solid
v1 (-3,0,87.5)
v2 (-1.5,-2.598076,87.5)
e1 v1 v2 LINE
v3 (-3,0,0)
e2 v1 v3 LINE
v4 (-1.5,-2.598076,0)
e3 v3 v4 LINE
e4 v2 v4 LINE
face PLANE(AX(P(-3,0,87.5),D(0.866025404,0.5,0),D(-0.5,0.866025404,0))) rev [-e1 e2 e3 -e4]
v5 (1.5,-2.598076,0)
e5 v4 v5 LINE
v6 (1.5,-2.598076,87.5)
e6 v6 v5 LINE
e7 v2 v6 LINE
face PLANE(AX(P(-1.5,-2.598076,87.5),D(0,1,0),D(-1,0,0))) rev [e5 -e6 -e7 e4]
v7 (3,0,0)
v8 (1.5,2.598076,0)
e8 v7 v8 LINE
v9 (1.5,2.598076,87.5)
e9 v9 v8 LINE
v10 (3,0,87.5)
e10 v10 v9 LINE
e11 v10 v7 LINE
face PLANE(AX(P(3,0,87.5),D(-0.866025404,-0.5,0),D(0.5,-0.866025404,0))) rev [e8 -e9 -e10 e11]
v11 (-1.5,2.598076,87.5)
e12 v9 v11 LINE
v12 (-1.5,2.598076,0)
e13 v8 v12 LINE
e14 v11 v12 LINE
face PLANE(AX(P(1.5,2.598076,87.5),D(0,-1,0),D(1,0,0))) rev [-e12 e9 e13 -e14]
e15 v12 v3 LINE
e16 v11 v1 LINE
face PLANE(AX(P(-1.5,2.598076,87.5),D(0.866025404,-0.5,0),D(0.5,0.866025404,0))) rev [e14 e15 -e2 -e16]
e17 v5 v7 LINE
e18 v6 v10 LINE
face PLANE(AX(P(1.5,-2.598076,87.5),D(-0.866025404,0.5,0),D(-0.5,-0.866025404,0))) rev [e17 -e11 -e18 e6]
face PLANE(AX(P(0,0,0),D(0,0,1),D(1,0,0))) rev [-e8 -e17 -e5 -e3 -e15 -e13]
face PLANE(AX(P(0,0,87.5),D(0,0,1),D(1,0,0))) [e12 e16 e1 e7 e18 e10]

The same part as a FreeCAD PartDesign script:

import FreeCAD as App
import Part
import Sketcher
Q = App.Units.Quantity

doc = App.newDocument("Part")
body = doc.addObject("PartDesign::Body", "Body")

# Sketch on XY plane
sketch1 = body.newObject("Sketcher::SketchObject", "Sketch")
sketch1.AttachmentSupport = (doc.getObject("XY_Plane"), [""])
sketch1.MapMode = "FlatFace"
sketch1.addGeometry(Part.LineSegment(App.Vector(3, 0, 0), App.Vector(1.5, 2.598076, 0)), False)
sketch1.addGeometry(Part.LineSegment(App.Vector(1.5, 2.598076, 0), App.Vector(-1.5, 2.598076, 0)), False)
sketch1.addGeometry(Part.LineSegment(App.Vector(-1.5, 2.598076, 0), App.Vector(-3, 0, 0)), False)
sketch1.addGeometry(Part.LineSegment(App.Vector(-3, 0, 0), App.Vector(-1.5, -2.598076, 0)), False)
sketch1.addGeometry(Part.LineSegment(App.Vector(-1.5, -2.598076, 0), App.Vector(1.5, -2.598076, 0)), False)
sketch1.addGeometry(Part.LineSegment(App.Vector(1.5, -2.598076, 0), App.Vector(3, 0, 0)), False)
sketch1.addConstraint(Sketcher.Constraint("Coincident", 0, 2, 1, 1))
sketch1.addConstraint(Sketcher.Constraint("Coincident", 1, 2, 2, 1))
sketch1.addConstraint(Sketcher.Constraint("Coincident", 2, 2, 3, 1))
sketch1.addConstraint(Sketcher.Constraint("Coincident", 3, 2, 4, 1))
sketch1.addConstraint(Sketcher.Constraint("Coincident", 4, 2, 5, 1))
sketch1.addConstraint(Sketcher.Constraint("Coincident", 5, 2, 0, 1))
sketch1.addConstraint(Sketcher.Constraint("Horizontal", 1))
sketch1.addConstraint(Sketcher.Constraint("Horizontal", 4))
sketch1.addConstraint(Sketcher.Constraint("Symmetric", 0, 2, 3, 2, -1, 1))
sketch1.addConstraint(Sketcher.Constraint("Symmetric", 2, 2, 5, 2, -1, 1))
sketch1.addConstraint(Sketcher.Constraint("PointOnObject", 2, 2, -1))
sketch1.addConstraint(Sketcher.Constraint("Parallel", 2, 5))
sketch1.addConstraint(Sketcher.Constraint("Vertical", 1, 2, 3, 2))
sketch1.addConstraint(Sketcher.Constraint("DistanceX", 1, 2, 1, 1, 3.0))
sketch1.addConstraint(Sketcher.Constraint("Angle", 0, Q("120 deg")))
sketch1.addConstraint(Sketcher.Constraint("Distance", 0, 3.0))
pad1 = body.newObject("PartDesign::Pad", "Pad")
pad1.Profile = sketch1
pad1.Length = 87.5

doc.recompute()
